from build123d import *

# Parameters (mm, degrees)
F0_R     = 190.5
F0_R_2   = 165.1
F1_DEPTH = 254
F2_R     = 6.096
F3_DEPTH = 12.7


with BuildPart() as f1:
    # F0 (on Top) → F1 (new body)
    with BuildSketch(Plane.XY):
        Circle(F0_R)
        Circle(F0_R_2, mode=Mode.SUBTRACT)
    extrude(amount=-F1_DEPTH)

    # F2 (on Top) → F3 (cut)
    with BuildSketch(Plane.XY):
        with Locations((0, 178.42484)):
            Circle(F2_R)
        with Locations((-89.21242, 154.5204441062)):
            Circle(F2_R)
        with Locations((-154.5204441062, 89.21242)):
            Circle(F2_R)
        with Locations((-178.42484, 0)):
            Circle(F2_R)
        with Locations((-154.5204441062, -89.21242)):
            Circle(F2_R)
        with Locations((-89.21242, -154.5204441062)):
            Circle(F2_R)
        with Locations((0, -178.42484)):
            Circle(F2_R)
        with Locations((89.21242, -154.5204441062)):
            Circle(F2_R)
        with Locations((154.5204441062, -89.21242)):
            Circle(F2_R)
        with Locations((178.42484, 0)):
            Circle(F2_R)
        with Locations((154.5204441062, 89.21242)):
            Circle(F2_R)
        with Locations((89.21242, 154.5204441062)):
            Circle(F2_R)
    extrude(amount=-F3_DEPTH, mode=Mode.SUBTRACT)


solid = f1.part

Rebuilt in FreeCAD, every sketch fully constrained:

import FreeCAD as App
import Part
import Sketcher
from FreeCAD import Vector
Q = App.Units.Quantity

doc = App.newDocument("Part")
params = doc.addObject("Spreadsheet::Sheet", "Params")
for row, (alias, value) in enumerate([
    ("sketch1_diameter", "15 in"),
    ("sketch1_diameter2", "13 in"),
    ("pad1_length", "10 in"),
    ("sketch2_diameter", "0.48 in"),
    ("pocket1_length", "0.5 in"),
], start=1):
    params.set(f"A{row}", alias)
    params.set(f"B{row}", "=" + value)
    params.setAlias(f"B{row}", alias)

body = doc.addObject("PartDesign::Body", "Body")

# Sketch on XY plane
sketch1 = body.newObject("Sketcher::SketchObject", "Sketch")
sketch1.AttachmentSupport = (doc.getObject("XY_Plane"), [""])
sketch1.MapMode = "FlatFace"
sketch1.addGeometry([
    Part.Circle(Vector(0, 0, 0), Vector(0, 0, 1), 190),
    Part.Circle(Vector(0, 0, 0), Vector(0, 0, 1), 165),
], False)
sketch1.addConstraint([
    Sketcher.Constraint("Coincident", 0, 3, -1, 1),
    Sketcher.Constraint("Coincident", 1, 3, -1, 1),
    Sketcher.Constraint("Diameter", 0, Q("15 in")),
    Sketcher.Constraint("Diameter", 1, Q("13 in")),
])
sketch1.setExpression("Constraints[2]", "Params.sketch1_diameter")
sketch1.setExpression("Constraints[3]", "Params.sketch1_diameter2")
pad1 = body.newObject("PartDesign::Pad", "Pad")
pad1.Profile = sketch1
pad1.setExpression("Length", "Params.pad1_length")
pad1.Reversed = True

# Sketch on XY plane
sketch2 = body.newObject("Sketcher::SketchObject", "Sketch001")
sketch2.AttachmentSupport = (doc.getObject("XY_Plane"), [""])
sketch2.MapMode = "FlatFace"
sketch2.addGeometry([
    Part.Circle(Vector(0, 178, 0), Vector(0, 0, 1), 6),  # 0
    Part.Circle(Vector(-89, 155, 0), Vector(0, 0, 1), 6),  # 1
    Part.Circle(Vector(-155, 89, 0), Vector(0, 0, 1), 6),  # 2
    Part.Circle(Vector(-178, 0, 0), Vector(0, 0, 1), 6),  # 3
    Part.Circle(Vector(-155, -89, 0), Vector(0, 0, 1), 6),  # 4
    Part.Circle(Vector(-89, -155, 0), Vector(0, 0, 1), 6),  # 5
    Part.Circle(Vector(0, -178, 0), Vector(0, 0, 1), 6),  # 6
    Part.Circle(Vector(89, -155, 0), Vector(0, 0, 1), 6),  # 7
    Part.Circle(Vector(155, -89, 0), Vector(0, 0, 1), 6),  # 8
    Part.Circle(Vector(178, 0, 0), Vector(0, 0, 1), 6),  # 9
    Part.Circle(Vector(155, 89, 0), Vector(0, 0, 1), 6),  # 10
    Part.Circle(Vector(89, 155, 0), Vector(0, 0, 1), 6),  # 11
], False)
sketch2.addConstraint([
    Sketcher.Constraint("Equal", 0, 1),
    Sketcher.Constraint("Equal", 1, 2),
    Sketcher.Constraint("Equal", 2, 3),
    Sketcher.Constraint("Equal", 3, 4),
    Sketcher.Constraint("Equal", 4, 5),
    Sketcher.Constraint("Equal", 5, 6),
    Sketcher.Constraint("Equal", 6, 7),
    Sketcher.Constraint("Equal", 7, 8),
    Sketcher.Constraint("Equal", 8, 9),
    Sketcher.Constraint("Equal", 9, 10),
    Sketcher.Constraint("Equal", 10, 11),
    Sketcher.Constraint("Symmetric", 0, 3, 6, 3, -1, 1),
    Sketcher.Constraint("Symmetric", 1, 3, 7, 3, -1, 1),
    Sketcher.Constraint("Symmetric", 2, 3, 8, 3, -1, 1),
    Sketcher.Constraint("Symmetric", 3, 3, 9, 3, -1, 1),
    Sketcher.Constraint("Symmetric", 4, 3, 10, 3, -1, 1),
    Sketcher.Constraint("Symmetric", 5, 3, 11, 3, -1, 1),
    Sketcher.Constraint("Symmetric", 5, 3, 7, 3, -2),
    Sketcher.Constraint("Symmetric", 4, 3, 8, 3, -2),
    Sketcher.Constraint("PointOnObject", 0, 3, -2),
    Sketcher.Constraint("PointOnObject", 3, 3, -1),
    Sketcher.Constraint("Diameter", 0, Q("0.48 in")),
    Sketcher.Constraint("DistanceY", -1, 1, 0, 3, Q("7.0246 in")),
    Sketcher.Constraint("DistanceX", 1, 3, -1, 1, Q("3.5123 in")),
    Sketcher.Constraint("DistanceY", -1, 1, 2, 3, Q("3.5123 in")),
    Sketcher.Constraint("DistanceX", 3, 3, -1, 1, Q("7.0246 in")),
    Sketcher.Constraint("DistanceY", 5, 3, 1, 3, Q("309.040888 mm")),
    Sketcher.Constraint("DistanceX", 4, 3, 8, 3, Q("309.040888 mm")),
])
sketch2.setExpression("Constraints[21]", "Params.sketch2_diameter")
pocket1 = body.newObject("PartDesign::Pocket", "Pocket")
pocket1.Profile = sketch2
pocket1.setExpression("Length", "Params.pocket1_length")

doc.recompute()
